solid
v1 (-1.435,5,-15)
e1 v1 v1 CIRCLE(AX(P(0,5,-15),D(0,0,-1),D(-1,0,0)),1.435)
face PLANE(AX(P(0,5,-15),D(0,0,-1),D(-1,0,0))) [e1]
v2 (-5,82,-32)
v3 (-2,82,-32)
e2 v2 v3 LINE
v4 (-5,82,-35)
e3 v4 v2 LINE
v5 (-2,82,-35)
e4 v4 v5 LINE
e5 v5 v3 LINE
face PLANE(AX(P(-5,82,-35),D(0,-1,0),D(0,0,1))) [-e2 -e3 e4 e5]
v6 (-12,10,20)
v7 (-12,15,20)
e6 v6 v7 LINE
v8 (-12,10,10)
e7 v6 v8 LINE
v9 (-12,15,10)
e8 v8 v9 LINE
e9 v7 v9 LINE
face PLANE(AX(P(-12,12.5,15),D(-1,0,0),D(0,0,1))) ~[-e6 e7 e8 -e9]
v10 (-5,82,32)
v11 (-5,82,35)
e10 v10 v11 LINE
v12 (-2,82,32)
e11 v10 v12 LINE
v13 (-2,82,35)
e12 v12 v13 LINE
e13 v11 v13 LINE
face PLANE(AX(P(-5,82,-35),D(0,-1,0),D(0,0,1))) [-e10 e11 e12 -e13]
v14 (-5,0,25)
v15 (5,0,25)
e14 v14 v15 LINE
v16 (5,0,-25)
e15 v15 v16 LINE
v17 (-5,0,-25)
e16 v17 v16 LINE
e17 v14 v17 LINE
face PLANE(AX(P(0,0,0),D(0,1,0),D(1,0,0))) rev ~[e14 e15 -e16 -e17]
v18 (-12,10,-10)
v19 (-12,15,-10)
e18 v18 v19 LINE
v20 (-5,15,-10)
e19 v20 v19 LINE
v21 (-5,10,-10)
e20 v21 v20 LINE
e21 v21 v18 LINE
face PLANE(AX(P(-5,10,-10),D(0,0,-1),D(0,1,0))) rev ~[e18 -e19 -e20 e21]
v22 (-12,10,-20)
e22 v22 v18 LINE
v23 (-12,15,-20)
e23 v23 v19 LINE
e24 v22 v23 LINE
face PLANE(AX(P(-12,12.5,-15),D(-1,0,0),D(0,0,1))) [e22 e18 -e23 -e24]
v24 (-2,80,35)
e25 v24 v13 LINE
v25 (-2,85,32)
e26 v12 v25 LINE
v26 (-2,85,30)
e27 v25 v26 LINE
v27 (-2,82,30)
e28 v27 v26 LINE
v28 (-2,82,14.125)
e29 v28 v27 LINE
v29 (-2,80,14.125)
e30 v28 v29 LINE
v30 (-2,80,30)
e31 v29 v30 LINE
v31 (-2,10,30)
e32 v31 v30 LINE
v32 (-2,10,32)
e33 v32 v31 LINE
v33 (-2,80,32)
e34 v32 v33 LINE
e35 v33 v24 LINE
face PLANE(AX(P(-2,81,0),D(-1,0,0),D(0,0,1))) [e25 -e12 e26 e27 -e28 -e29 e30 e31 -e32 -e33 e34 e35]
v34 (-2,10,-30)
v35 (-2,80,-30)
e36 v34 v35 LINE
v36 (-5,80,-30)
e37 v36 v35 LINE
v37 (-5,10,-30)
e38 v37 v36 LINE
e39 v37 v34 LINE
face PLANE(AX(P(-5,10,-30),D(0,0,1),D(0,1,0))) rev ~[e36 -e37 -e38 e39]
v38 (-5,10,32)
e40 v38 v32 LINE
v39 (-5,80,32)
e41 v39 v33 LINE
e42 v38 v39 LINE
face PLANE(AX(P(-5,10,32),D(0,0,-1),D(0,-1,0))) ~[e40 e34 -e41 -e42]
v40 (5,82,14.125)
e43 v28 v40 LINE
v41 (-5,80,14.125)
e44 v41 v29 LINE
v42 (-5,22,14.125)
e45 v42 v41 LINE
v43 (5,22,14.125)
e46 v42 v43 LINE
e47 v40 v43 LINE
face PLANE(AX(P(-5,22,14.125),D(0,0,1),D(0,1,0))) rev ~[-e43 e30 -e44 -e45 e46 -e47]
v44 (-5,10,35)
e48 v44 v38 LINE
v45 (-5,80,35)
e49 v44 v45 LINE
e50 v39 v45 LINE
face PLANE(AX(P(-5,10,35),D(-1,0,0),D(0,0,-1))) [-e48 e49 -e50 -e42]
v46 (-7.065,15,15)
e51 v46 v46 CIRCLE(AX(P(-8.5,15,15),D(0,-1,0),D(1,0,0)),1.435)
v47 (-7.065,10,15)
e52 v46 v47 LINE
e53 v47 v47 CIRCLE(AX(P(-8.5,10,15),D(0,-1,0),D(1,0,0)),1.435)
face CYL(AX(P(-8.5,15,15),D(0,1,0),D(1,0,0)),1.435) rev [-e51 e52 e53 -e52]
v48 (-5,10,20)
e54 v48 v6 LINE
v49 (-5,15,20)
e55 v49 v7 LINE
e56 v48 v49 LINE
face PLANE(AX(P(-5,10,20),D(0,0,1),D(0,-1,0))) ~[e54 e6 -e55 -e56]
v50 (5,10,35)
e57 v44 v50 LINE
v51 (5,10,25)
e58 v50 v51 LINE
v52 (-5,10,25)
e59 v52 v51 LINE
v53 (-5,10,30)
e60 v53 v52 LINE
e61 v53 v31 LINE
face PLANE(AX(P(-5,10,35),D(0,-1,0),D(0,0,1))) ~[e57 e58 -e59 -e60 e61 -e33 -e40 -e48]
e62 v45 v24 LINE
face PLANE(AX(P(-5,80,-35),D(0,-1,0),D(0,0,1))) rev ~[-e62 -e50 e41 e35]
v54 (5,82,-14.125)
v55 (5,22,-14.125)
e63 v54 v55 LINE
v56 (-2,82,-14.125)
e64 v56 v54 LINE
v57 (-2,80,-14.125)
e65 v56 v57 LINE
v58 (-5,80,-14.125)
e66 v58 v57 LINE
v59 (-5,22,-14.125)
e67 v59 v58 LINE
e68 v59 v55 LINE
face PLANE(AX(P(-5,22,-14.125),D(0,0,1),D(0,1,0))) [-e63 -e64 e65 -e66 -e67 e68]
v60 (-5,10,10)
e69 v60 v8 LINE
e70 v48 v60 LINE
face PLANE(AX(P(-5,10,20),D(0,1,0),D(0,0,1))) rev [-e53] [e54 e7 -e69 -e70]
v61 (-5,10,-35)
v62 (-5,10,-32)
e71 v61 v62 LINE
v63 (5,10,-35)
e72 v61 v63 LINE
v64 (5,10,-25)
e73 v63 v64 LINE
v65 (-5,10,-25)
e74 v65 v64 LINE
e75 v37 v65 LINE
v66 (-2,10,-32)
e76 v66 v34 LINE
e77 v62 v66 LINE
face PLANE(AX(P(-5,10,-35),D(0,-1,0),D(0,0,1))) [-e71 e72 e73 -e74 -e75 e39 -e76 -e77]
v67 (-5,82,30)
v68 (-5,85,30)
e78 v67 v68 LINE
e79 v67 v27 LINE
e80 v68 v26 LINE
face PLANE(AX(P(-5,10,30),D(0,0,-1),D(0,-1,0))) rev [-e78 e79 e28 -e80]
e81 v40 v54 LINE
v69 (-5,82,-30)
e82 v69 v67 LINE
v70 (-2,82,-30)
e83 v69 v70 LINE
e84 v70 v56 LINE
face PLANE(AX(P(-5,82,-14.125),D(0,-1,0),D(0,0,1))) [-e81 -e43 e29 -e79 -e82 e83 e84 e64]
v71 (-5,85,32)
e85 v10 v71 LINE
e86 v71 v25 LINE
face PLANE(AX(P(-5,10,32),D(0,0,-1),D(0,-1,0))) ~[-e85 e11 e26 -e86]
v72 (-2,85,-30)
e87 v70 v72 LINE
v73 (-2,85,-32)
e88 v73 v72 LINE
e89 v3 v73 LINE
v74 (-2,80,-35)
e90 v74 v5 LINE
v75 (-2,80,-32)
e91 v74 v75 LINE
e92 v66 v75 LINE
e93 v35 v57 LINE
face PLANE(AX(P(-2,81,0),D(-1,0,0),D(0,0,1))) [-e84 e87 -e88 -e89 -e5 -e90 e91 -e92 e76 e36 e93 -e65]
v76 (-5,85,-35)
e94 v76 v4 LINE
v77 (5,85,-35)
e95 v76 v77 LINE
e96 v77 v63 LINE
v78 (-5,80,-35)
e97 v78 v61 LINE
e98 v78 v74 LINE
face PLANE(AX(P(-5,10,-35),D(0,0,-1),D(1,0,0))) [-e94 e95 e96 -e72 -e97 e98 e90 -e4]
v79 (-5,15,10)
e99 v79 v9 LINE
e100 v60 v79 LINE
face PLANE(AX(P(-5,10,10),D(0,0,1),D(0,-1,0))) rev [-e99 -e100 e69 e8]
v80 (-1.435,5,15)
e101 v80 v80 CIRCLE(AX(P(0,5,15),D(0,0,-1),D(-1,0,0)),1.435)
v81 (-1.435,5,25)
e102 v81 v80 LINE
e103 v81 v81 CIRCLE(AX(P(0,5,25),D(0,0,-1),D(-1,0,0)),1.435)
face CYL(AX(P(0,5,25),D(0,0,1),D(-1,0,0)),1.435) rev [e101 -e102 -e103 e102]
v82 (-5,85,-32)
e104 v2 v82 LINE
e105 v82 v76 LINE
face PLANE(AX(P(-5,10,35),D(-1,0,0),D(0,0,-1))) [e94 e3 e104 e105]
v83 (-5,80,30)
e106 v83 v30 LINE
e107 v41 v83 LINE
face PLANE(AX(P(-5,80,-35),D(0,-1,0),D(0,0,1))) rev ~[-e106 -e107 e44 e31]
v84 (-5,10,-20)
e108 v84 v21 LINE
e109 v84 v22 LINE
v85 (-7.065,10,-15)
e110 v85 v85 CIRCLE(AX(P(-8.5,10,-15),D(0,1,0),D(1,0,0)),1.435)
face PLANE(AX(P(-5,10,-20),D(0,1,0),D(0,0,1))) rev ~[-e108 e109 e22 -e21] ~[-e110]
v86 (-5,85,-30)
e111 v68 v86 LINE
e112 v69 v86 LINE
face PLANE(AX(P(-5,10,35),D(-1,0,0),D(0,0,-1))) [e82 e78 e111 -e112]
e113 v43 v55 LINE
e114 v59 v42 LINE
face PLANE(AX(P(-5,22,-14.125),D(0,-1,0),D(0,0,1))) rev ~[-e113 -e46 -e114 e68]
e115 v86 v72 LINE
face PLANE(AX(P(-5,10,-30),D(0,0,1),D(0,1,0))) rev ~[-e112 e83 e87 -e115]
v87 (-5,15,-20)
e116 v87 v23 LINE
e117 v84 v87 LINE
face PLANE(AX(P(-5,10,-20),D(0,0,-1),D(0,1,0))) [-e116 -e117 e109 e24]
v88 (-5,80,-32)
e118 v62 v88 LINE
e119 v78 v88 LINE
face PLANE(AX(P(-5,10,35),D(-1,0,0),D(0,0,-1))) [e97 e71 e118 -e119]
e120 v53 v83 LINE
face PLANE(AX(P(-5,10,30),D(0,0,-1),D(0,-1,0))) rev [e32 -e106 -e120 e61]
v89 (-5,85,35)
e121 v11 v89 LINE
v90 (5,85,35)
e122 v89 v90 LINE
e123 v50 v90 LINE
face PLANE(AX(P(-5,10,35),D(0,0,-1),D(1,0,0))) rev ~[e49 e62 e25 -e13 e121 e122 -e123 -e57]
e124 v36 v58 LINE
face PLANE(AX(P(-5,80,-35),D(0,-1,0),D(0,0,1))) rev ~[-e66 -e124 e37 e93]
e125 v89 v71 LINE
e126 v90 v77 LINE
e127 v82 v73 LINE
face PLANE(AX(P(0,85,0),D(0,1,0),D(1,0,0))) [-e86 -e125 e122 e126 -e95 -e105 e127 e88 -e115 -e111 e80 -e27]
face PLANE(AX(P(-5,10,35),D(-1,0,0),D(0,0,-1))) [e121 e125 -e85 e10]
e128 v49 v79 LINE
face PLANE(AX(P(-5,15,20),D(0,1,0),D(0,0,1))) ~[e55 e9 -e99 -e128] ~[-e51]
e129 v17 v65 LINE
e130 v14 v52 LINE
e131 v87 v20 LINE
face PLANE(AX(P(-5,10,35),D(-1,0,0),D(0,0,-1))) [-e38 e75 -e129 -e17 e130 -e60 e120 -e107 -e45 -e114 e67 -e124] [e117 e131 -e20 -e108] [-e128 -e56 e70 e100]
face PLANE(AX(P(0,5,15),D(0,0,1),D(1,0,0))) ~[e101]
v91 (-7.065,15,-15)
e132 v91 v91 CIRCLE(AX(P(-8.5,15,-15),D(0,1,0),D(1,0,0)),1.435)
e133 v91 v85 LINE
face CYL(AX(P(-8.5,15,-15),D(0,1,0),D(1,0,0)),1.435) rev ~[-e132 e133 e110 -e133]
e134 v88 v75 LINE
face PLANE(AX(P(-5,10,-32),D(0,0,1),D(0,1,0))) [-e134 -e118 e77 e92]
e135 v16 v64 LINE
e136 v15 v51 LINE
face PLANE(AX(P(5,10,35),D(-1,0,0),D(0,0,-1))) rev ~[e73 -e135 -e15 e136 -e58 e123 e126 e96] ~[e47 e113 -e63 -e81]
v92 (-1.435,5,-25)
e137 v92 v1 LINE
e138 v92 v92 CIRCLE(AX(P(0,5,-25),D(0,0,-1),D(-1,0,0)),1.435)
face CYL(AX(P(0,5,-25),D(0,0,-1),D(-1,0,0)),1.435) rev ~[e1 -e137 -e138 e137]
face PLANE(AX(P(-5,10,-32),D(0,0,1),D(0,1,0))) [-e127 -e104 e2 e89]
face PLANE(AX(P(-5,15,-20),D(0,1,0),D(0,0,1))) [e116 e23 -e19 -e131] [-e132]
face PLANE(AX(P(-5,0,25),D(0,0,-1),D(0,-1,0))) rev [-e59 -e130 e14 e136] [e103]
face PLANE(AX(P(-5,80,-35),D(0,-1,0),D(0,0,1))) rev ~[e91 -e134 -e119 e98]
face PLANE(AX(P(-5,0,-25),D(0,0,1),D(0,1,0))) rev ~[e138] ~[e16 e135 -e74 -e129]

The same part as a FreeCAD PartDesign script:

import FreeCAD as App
import Part
import Sketcher

V = App.Vector
Q = App.Units.Quantity


def add_polygon(sketch, points):
    """Adds a closed chain of lines whose ends are joined by coincident constraints."""
    first, n = sketch.GeometryCount, len(points)
    for a, b in zip(points, points[1:] + points[:1]):
        sketch.addGeometry(Part.LineSegment(App.Vector(*a, 0), App.Vector(*b, 0)), False)
    for i in range(n):
        sketch.addConstraint(Sketcher.Constraint("Coincident", first + i, 2, first + (i + 1) % n, 1))

doc = App.newDocument("Part")
params = doc.addObject("Spreadsheet::Sheet", "Params")
for row, (alias, value) in enumerate([
    ("sketch1_width", "10 mm"),
    ("sketch1_height", "70 mm"),
    ("pad1_length", "10 mm"),
    ("sketch2_width", "10 mm"),
    ("sketch2_height", "70 mm"),
    ("pad2_length", "75 mm"),
    ("sketch3_width", "75 mm"),
    ("sketch3_height", "2 mm"),
    ("pocket1_length", "3 mm"),
    ("sketch4_width", "2 mm"),
    ("sketch4_height", "70 mm"),
    ("pocket2_length", "3 mm"),
    ("sketch5_width", "60 mm"),
    ("sketch5_height", "28.25 mm"),
    ("sketch6_width", "5 mm"),
    ("sketch6_height", "10 mm"),
    ("pad3_length", "7 mm"),
    ("sketch7_diameter", "2.87 mm"),
    ("pocket4_length", "5 mm"),
    ("sketch8_width", "10 mm"),
    ("pocket5_length", "10 mm"),
    ("sketch9_diameter", "2.87 mm"),
    ("pocket6_length", "10 mm"),
], start=1):
    params.set(f"A{row}", alias)
    params.set(f"B{row}", "=" + value)
    params.setAlias(f"B{row}", alias)

body = doc.addObject("PartDesign::Body", "Body")

# Sketch on XZ plane
sketch1 = body.newObject("Sketcher::SketchObject", "Sketch")
sketch1.AttachmentSupport = (doc.getObject("XZ_Plane"), [""])
sketch1.MapMode = "FlatFace"
add_polygon(sketch1, [(-5, -35), (-5, 35), (5, 35), (5, -35)])  # lines 0-3
sketch1.addConstraint([
    Sketcher.Constraint("Vertical", 0),
    Sketcher.Constraint("Horizontal", 1),
    Sketcher.Constraint("Vertical", 2),
    Sketcher.Constraint("Horizontal", 3),
    Sketcher.Constraint("Symmetric", 0, 2, 2, 2, -1, 1),
    Sketcher.Constraint("DistanceX", 1, 1, 1, 2, Q("10 mm")),
    Sketcher.Constraint("DistanceY", 0, 1, 0, 2, Q("70 mm")),
])
sketch1.setExpression("Constraints[9]", "Params.sketch1_width")
sketch1.setExpression("Constraints[10]", "Params.sketch1_height")
pad1 = body.newObject("PartDesign::Pad", "Pad")
pad1.Profile = sketch1
pad1.setExpression("Length", "Params.pad1_length")
pad1.Reversed = True

# Sketch on XZ plane
sketch2 = body.newObject("Sketcher::SketchObject", "Sketch001")
sketch2.AttachmentSupport = (doc.getObject("XZ_Plane"), [""])
sketch2.MapMode = "FlatFace"
sketch2.AttachmentOffset = App.Placement(V(0, 0, -10), App.Rotation())
add_polygon(sketch2, [(-5, -35), (-5, 35), (5, 35), (5, -35)])  # lines 0-3
sketch2.addConstraint([
    Sketcher.Constraint("Vertical", 0),
    Sketcher.Constraint("Horizontal", 1),
    Sketcher.Constraint("Vertical", 2),
    Sketcher.Constraint("Horizontal", 3),
    Sketcher.Constraint("Symmetric", 0, 2, 2, 2, -1, 1),
    Sketcher.Constraint("DistanceX", 1, 1, 1, 2, Q("10 mm")),
    Sketcher.Constraint("DistanceY", 0, 1, 0, 2, Q("70 mm")),
])
sketch2.setExpression("Constraints[9]", "Params.sketch2_width")
sketch2.setExpression("Constraints[10]", "Params.sketch2_height")
pad2 = body.newObject("PartDesign::Pad", "Pad001")
pad2.Profile = sketch2
pad2.setExpression("Length", "Params.pad2_length")
pad2.Reversed = True

# Sketch on YZ plane
sketch3 = body.newObject("Sketcher::SketchObject", "Sketch002")
sketch3.AttachmentSupport = (doc.getObject("YZ_Plane"), [""])
sketch3.MapMode = "FlatFace"
sketch3.AttachmentOffset = App.Placement(V(0, 0, -5), App.Rotation())
add_polygon(sketch3, [(85, -32), (10, -32), (10, -30), (85, -30)])  # lines 0-3
sketch3.addConstraint([
    Sketcher.Constraint("Horizontal", 0),
    Sketcher.Constraint("Vertical", 1),
    Sketcher.Constraint("Horizontal", 2),
    Sketcher.Constraint("Vertical", 3),
    Sketcher.Constraint("DistanceX", 0, 2, 0, 1, Q("75 mm")),
    Sketcher.Constraint("DistanceY", 1, 1, 1, 2, Q("2 mm")),
    Sketcher.Constraint("DistanceX", -1, 1, 0, 2, Q("10 mm")),
    Sketcher.Constraint("DistanceY", 0, 2, -1, 1, Q("32 mm")),
])
sketch3.setExpression("Constraints[8]", "Params.sketch3_width")
sketch3.setExpression("Constraints[9]", "Params.sketch3_height")
pocket1 = body.newObject("PartDesign::Pocket", "Pocket")
pocket1.Profile = sketch3
pocket1.setExpression("Length", "Params.pocket1_length")
pocket1.Reversed = True
doc.recompute()

mirrored = body.newObject("PartDesign::Mirrored", "Mirrored")
mirrored.Originals = [pocket1]
mirrored.MirrorPlane = (doc.getObject("XY_Plane"), [""])
body.Tip = mirrored

# Sketch on YZ plane
sketch4 = body.newObject("Sketcher::SketchObject", "Sketch003")
sketch4.AttachmentSupport = (doc.getObject("YZ_Plane"), [""])
sketch4.MapMode = "FlatFace"
sketch4.AttachmentOffset = App.Placement(V(0, 0, -5), App.Rotation())
add_polygon(sketch4, [(82, -35), (80, -35), (80, 35), (82, 35)])  # lines 0-3
sketch4.addConstraint([
    Sketcher.Constraint("Horizontal", 0),
    Sketcher.Constraint("Vertical", 1),
    Sketcher.Constraint("Horizontal", 2),
    Sketcher.Constraint("Vertical", 3),
    Sketcher.Constraint("DistanceX", 0, 2, 0, 1, Q("2 mm")),
    Sketcher.Constraint("DistanceY", 1, 1, 1, 2, Q("70 mm")),
    Sketcher.Constraint("DistanceX", -1, 1, 0, 2, Q("80 mm")),
    Sketcher.Constraint("DistanceY", 0, 2, -1, 1, Q("35 mm")),
])
sketch4.setExpression("Constraints[8]", "Params.sketch4_width")
sketch4.setExpression("Constraints[9]", "Params.sketch4_height")
pocket2 = body.newObject("PartDesign::Pocket", "Pocket001")
pocket2.Profile = sketch4
pocket2.setExpression("Length", "Params.pocket2_length")
pocket2.Reversed = True

# Sketch on YZ plane
sketch5 = body.newObject("Sketcher::SketchObject", "Sketch004")
sketch5.AttachmentSupport = (doc.getObject("YZ_Plane"), [""])
sketch5.MapMode = "FlatFace"
sketch5.AttachmentOffset = App.Placement(V(0, 0, -5), App.Rotation())
add_polygon(sketch5, [(82, -14), (22, -14), (22, 14), (82, 14)])  # lines 0-3
sketch5.addConstraint([
    Sketcher.Constraint("Horizontal", 0),
    Sketcher.Constraint("Vertical", 1),
    Sketcher.Constraint("Horizontal", 2),
    Sketcher.Constraint("Vertical", 3),
    Sketcher.Constraint("DistanceX", 0, 2, 0, 1, Q("60 mm")),
    Sketcher.Constraint("DistanceX", -1, 1, 0, 2, Q("22 mm")),
    Sketcher.Constraint("DistanceY", 1, 1, 1, 2, Q("28.25 mm")),
    Sketcher.Constraint("DistanceY", 0, 2, -1, 1, Q("14.125 mm")),
])
sketch5.setExpression("Constraints[8]", "Params.sketch5_width")
sketch5.setExpression("Constraints[10]", "Params.sketch5_height")
pocket3 = body.newObject("PartDesign::Pocket", "Pocket002")
pocket3.Profile = sketch5
pocket3.Type = "UpToFirst"
pocket3.Reversed = True

# Sketch on YZ plane
sketch6 = body.newObject("Sketcher::SketchObject", "Sketch005")
sketch6.AttachmentSupport = (doc.getObject("YZ_Plane"), [""])
sketch6.MapMode = "FlatFace"
sketch6.AttachmentOffset = App.Placement(V(0, 0, -5), App.Rotation())
add_polygon(sketch6, [(15, -20), (10, -20), (10, -10), (15, -10)])  # lines 0-3
sketch6.addConstraint([
    Sketcher.Constraint("Horizontal", 0),
    Sketcher.Constraint("Vertical", 1),
    Sketcher.Constraint("Horizontal", 2),
    Sketcher.Constraint("Vertical", 3),
    Sketcher.Constraint("DistanceX", 0, 2, 0, 1, Q("5 mm")),
    Sketcher.Constraint("DistanceY", 1, 1, 1, 2, Q("10 mm")),
    Sketcher.Constraint("DistanceX", -1, 1, 0, 2, Q("10 mm")),
    Sketcher.Constraint("DistanceY", 0, 2, -1, 1, Q("20 mm")),
])
sketch6.setExpression("Constraints[8]", "Params.sketch6_width")
sketch6.setExpression("Constraints[9]", "Params.sketch6_height")
pad3 = body.newObject("PartDesign::Pad", "Pad002")
pad3.Profile = sketch6
pad3.setExpression("Length", "Params.pad3_length")
pad3.Reversed = True
doc.recompute()

mirrored2 = body.newObject("PartDesign::Mirrored", "Mirrored001")
mirrored2.Originals = [pad3]
mirrored2.MirrorPlane = (doc.getObject("XY_Plane"), [""])
body.Tip = mirrored2

# Sketch on XZ plane
sketch7 = body.newObject("Sketcher::SketchObject", "Sketch006")
sketch7.AttachmentSupport = (doc.getObject("XZ_Plane"), [""])
sketch7.MapMode = "FlatFace"
sketch7.AttachmentOffset = App.Placement(V(0, 0, -15), App.Rotation())
sketch7.addGeometry(Part.Circle(V(-8.5, -15, 0), V(0, 0, 1), 1.4), False)
sketch7.addConstraint([
    Sketcher.Constraint("Diameter", 0, Q("2.87 mm")),
    Sketcher.Constraint("DistanceY", 0, 3, -1, 1, Q("15 mm")),
    Sketcher.Constraint("DistanceX", 0, 3, -1, 1, Q("8.5 mm")),
])
sketch7.setExpression("Constraints[0]", "Params.sketch7_diameter")
pocket4 = body.newObject("PartDesign::Pocket", "Pocket003")
pocket4.Profile = sketch7
pocket4.setExpression("Length", "Params.pocket4_length")
pocket4.Reversed = True
doc.recompute()

mirrored3 = body.newObject("PartDesign::Mirrored", "Mirrored002")
mirrored3.Originals = [pocket4]
mirrored3.MirrorPlane = (doc.getObject("XY_Plane"), [""])
body.Tip = mirrored3

# Sketch on YZ plane
sketch8 = body.newObject("Sketcher::SketchObject", "Sketch007")
sketch8.AttachmentSupport = (doc.getObject("YZ_Plane"), [""])
sketch8.MapMode = "FlatFace"
sketch8.AttachmentOffset = App.Placement(V(0, 0, -5), App.Rotation())
add_polygon(sketch8, [(10, -35), (0, -35), (0, -25), (10, -25)])  # lines 0-3
sketch8.addConstraint([
    Sketcher.Constraint("Horizontal", 0),
    Sketcher.Constraint("Vertical", 1),
    Sketcher.Constraint("Horizontal", 2),
    Sketcher.Constraint("Vertical", 3),
    Sketcher.Constraint("PointOnObject", 0, 2, -2),
    Sketcher.Constraint("Equal", 2, 1),
    Sketcher.Constraint("DistanceX", 0, 2, 0, 1, Q("10 mm")),
    Sketcher.Constraint("DistanceY", 0, 2, -1, 1, Q("35 mm")),
])
sketch8.setExpression("Constraints[10]", "Params.sketch8_width")
pocket5 = body.newObject("PartDesign::Pocket", "Pocket004")
pocket5.Profile = sketch8
pocket5.setExpression("Length", "Params.pocket5_length")
pocket5.Reversed = True
doc.recompute()

mirrored4 = body.newObject("PartDesign::Mirrored", "Mirrored003")
mirrored4.Originals = [pocket5]
mirrored4.MirrorPlane = (doc.getObject("XY_Plane"), [""])
body.Tip = mirrored4

# Sketch on XY plane
sketch9 = body.newObject("Sketcher::SketchObject", "Sketch008")
sketch9.AttachmentSupport = (doc.getObject("XY_Plane"), [""])
sketch9.MapMode = "FlatFace"
sketch9.AttachmentOffset = App.Placement(V(0, 0, -25), App.Rotation())
sketch9.addGeometry(Part.Circle(V(0, 5, 0), V(0, 0, 1), 1.4), False)
sketch9.addConstraint([
    Sketcher.Constraint("PointOnObject", 0, 3, -2),
    Sketcher.Constraint("Diameter", 0, Q("2.87 mm")),
    Sketcher.Constraint("DistanceY", -1, 1, 0, 3, Q("5 mm")),
])
sketch9.setExpression("Constraints[1]", "Params.sketch9_diameter")
pocket6 = body.newObject("PartDesign::Pocket", "Pocket005")
pocket6.Profile = sketch9
pocket6.setExpression("Length", "Params.pocket6_length")
pocket6.Reversed = True
doc.recompute()

mirrored5 = body.newObject("PartDesign::Mirrored", "Mirrored004")
mirrored5.Originals = [pocket6]
mirrored5.MirrorPlane = (doc.getObject("XY_Plane"), [""])
body.Tip = mirrored5

doc.recompute()
